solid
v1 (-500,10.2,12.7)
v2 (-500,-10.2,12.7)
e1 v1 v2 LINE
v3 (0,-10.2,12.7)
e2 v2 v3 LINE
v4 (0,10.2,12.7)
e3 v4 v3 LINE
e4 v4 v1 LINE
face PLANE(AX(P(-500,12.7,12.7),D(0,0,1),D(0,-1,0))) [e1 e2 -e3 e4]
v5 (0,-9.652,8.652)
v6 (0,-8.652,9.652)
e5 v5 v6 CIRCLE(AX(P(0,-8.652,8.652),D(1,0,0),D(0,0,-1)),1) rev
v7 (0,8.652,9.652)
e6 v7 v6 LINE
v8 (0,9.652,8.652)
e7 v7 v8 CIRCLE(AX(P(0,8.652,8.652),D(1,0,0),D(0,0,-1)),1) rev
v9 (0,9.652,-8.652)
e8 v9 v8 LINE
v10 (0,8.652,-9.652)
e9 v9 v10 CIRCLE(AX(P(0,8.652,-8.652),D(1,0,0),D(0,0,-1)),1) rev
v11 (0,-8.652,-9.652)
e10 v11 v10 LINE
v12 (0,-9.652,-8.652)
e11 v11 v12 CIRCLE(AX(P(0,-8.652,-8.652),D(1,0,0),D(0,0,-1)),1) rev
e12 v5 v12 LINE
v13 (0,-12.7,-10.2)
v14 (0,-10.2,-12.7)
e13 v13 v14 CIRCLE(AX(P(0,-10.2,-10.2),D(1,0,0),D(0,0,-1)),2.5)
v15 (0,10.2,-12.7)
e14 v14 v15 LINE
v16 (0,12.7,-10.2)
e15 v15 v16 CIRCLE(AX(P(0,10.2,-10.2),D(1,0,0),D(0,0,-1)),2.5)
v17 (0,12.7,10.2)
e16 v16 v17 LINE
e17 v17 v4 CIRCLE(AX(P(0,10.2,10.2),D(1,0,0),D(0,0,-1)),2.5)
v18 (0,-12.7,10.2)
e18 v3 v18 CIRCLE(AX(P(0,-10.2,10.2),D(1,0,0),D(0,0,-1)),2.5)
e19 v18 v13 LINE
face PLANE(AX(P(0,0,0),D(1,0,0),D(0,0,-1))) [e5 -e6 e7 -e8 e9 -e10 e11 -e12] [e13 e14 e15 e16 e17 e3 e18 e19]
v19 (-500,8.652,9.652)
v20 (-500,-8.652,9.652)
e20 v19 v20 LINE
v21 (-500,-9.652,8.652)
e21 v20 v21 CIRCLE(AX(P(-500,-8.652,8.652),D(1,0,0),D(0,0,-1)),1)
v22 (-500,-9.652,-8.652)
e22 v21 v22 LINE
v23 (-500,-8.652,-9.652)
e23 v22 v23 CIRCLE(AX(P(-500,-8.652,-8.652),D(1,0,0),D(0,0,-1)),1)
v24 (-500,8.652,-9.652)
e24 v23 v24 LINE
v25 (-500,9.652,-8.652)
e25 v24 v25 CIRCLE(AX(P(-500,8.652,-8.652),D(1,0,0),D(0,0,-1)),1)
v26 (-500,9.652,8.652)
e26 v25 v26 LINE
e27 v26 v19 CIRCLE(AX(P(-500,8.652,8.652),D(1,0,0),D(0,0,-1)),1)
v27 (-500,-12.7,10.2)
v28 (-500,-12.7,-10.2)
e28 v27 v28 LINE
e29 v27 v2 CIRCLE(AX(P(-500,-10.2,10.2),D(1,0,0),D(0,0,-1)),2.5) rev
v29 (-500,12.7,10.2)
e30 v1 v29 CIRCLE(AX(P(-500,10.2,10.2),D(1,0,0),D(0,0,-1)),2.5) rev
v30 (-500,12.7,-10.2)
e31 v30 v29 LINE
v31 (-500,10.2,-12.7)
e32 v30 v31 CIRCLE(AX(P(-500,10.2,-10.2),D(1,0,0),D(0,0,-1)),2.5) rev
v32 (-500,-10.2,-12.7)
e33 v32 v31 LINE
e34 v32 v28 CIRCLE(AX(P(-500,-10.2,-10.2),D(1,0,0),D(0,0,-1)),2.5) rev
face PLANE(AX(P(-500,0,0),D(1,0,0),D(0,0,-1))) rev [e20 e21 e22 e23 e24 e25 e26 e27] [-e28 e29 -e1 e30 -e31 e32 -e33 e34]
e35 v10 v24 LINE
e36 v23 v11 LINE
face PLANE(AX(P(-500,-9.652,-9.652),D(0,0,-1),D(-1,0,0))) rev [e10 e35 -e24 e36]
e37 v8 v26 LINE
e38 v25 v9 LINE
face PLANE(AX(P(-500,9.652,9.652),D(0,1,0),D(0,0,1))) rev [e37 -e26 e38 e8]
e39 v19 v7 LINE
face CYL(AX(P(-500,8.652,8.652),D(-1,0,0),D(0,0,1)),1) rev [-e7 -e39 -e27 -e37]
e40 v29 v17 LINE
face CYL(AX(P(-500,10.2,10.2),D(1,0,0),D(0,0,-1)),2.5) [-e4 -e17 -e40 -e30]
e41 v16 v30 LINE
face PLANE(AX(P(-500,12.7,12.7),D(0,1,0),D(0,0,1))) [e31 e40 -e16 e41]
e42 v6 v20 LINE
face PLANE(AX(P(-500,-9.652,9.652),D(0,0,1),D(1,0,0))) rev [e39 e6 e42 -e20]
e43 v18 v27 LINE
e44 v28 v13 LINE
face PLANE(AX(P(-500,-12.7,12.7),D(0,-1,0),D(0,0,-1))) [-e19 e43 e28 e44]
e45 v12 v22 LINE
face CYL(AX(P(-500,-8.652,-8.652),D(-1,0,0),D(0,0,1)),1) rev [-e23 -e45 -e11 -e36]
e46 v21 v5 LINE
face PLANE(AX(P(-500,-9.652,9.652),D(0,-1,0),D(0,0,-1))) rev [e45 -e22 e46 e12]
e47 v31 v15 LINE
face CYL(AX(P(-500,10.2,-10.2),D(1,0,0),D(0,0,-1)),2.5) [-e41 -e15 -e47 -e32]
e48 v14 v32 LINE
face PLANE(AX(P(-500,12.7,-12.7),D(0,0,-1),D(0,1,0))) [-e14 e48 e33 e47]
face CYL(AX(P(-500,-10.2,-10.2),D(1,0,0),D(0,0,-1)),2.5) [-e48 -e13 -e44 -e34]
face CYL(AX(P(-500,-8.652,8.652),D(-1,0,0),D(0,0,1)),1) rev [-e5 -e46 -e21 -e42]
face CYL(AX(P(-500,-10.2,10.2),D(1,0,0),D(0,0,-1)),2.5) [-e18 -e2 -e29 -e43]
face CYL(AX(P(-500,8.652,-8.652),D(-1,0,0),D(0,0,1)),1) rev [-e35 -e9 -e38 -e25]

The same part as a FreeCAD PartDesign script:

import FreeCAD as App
import Part
import Sketcher

V = App.Vector


def edges_at(feature, points):
    """Names of the edges that pass closest to the given points."""
    edges = feature.Shape.Edges
    near = lambda p: min(range(len(edges)), key=lambda i: edges[i].distToShape(Part.Vertex(*p))[0])
    return sorted({f"Edge{near(p) + 1}" for p in points})

doc = App.newDocument("Part")
body = doc.addObject("PartDesign::Body", "Body")

# Sketch on YZ plane
sketch1 = doc.addObject("Sketcher::SketchObject", "Sketch")
body.addObject(sketch1)
sketch1.AttachmentSupport = (doc.YZ_Plane, [""])
sketch1.MapMode = "FlatFace"
sketch1.addGeometry(Part.LineSegment(V(12.7, 12.7, 0), V(-12.7, 12.7, 0)), False)
sketch1.addGeometry(Part.LineSegment(V(-12.7, 12.7, 0), V(-12.7, -12.7, 0)), False)
sketch1.addGeometry(Part.LineSegment(V(-12.7, -12.7, 0), V(12.7, -12.7, 0)), False)
sketch1.addGeometry(Part.LineSegment(V(12.7, -12.7, 0), V(12.7, 12.7, 0)), False)
sketch1.addGeometry(Part.LineSegment(V(-9.652, -9.652, 0), V(-9.652, 9.652, 0)), False)
sketch1.addGeometry(Part.LineSegment(V(-9.652, 9.652, 0), V(9.652, 9.652, 0)), False)
sketch1.addGeometry(Part.LineSegment(V(9.652, 9.652, 0), V(9.652, -9.652, 0)), False)
sketch1.addGeometry(Part.LineSegment(V(9.652, -9.652, 0), V(-9.652, -9.652, 0)), False)
sketch1.addConstraint(Sketcher.Constraint("Coincident", 0, 2, 1, 1))
sketch1.addConstraint(Sketcher.Constraint("Coincident", 1, 2, 2, 1))
sketch1.addConstraint(Sketcher.Constraint("Coincident", 2, 2, 3, 1))
sketch1.addConstraint(Sketcher.Constraint("Coincident", 3, 2, 0, 1))
sketch1.addConstraint(Sketcher.Constraint("Coincident", 4, 2, 5, 1))
sketch1.addConstraint(Sketcher.Constraint("Coincident", 5, 2, 6, 1))
sketch1.addConstraint(Sketcher.Constraint("Coincident", 6, 2, 7, 1))
sketch1.addConstraint(Sketcher.Constraint("Coincident", 7, 2, 4, 1))
sketch1.addConstraint(Sketcher.Constraint("Horizontal", 0))
sketch1.addConstraint(Sketcher.Constraint("Vertical", 1))
sketch1.addConstraint(Sketcher.Constraint("Horizontal", 2))
sketch1.addConstraint(Sketcher.Constraint("Vertical", 3))
sketch1.addConstraint(Sketcher.Constraint("Vertical", 4))
sketch1.addConstraint(Sketcher.Constraint("Horizontal", 5))
sketch1.addConstraint(Sketcher.Constraint("Vertical", 6))
sketch1.addConstraint(Sketcher.Constraint("Horizontal", 7))
sketch1.addConstraint(Sketcher.Constraint("Symmetric", 0, 2, 2, 2, -1, 1))
sketch1.addConstraint(Sketcher.Constraint("Symmetric", 4, 2, 6, 2, -1, 1))
sketch1.addConstraint(Sketcher.Constraint("Equal", 2, 1))
sketch1.addConstraint(Sketcher.Constraint("Equal", 7, 4))
sketch1.addConstraint(Sketcher.Constraint("DistanceX", 0, 2, 0, 1, 25.4))
sketch1.addConstraint(Sketcher.Constraint("DistanceX", 5, 1, 5, 2, 19.304))
pad1 = doc.addObject("PartDesign::Pad", "Pad")
body.addObject(pad1)
pad1.Profile = sketch1
pad1.Length = 500
pad1.Reversed = True
doc.recompute()

fillet = doc.addObject("PartDesign::Fillet", "Fillet")
body.addObject(fillet)
fillet.Base = (pad1, edges_at(pad1, [
    (-250, -12.7, -12.7),
    (-250, -12.7, 12.7),
    (-250, 12.7, 12.7),
    (-250, 12.7, -12.7),
]))
fillet.Radius = 2.5
doc.recompute()

fillet2 = doc.addObject("PartDesign::Fillet", "Fillet001")
body.addObject(fillet2)
fillet2.Base = (fillet, edges_at(fillet, [
    (-250, 9.652, -9.652),
    (-250, -9.652, -9.652),
    (-250, -9.652, 9.652),
    (-250, 9.652, 9.652),
]))
fillet2.Radius = 1

doc.recompute()
